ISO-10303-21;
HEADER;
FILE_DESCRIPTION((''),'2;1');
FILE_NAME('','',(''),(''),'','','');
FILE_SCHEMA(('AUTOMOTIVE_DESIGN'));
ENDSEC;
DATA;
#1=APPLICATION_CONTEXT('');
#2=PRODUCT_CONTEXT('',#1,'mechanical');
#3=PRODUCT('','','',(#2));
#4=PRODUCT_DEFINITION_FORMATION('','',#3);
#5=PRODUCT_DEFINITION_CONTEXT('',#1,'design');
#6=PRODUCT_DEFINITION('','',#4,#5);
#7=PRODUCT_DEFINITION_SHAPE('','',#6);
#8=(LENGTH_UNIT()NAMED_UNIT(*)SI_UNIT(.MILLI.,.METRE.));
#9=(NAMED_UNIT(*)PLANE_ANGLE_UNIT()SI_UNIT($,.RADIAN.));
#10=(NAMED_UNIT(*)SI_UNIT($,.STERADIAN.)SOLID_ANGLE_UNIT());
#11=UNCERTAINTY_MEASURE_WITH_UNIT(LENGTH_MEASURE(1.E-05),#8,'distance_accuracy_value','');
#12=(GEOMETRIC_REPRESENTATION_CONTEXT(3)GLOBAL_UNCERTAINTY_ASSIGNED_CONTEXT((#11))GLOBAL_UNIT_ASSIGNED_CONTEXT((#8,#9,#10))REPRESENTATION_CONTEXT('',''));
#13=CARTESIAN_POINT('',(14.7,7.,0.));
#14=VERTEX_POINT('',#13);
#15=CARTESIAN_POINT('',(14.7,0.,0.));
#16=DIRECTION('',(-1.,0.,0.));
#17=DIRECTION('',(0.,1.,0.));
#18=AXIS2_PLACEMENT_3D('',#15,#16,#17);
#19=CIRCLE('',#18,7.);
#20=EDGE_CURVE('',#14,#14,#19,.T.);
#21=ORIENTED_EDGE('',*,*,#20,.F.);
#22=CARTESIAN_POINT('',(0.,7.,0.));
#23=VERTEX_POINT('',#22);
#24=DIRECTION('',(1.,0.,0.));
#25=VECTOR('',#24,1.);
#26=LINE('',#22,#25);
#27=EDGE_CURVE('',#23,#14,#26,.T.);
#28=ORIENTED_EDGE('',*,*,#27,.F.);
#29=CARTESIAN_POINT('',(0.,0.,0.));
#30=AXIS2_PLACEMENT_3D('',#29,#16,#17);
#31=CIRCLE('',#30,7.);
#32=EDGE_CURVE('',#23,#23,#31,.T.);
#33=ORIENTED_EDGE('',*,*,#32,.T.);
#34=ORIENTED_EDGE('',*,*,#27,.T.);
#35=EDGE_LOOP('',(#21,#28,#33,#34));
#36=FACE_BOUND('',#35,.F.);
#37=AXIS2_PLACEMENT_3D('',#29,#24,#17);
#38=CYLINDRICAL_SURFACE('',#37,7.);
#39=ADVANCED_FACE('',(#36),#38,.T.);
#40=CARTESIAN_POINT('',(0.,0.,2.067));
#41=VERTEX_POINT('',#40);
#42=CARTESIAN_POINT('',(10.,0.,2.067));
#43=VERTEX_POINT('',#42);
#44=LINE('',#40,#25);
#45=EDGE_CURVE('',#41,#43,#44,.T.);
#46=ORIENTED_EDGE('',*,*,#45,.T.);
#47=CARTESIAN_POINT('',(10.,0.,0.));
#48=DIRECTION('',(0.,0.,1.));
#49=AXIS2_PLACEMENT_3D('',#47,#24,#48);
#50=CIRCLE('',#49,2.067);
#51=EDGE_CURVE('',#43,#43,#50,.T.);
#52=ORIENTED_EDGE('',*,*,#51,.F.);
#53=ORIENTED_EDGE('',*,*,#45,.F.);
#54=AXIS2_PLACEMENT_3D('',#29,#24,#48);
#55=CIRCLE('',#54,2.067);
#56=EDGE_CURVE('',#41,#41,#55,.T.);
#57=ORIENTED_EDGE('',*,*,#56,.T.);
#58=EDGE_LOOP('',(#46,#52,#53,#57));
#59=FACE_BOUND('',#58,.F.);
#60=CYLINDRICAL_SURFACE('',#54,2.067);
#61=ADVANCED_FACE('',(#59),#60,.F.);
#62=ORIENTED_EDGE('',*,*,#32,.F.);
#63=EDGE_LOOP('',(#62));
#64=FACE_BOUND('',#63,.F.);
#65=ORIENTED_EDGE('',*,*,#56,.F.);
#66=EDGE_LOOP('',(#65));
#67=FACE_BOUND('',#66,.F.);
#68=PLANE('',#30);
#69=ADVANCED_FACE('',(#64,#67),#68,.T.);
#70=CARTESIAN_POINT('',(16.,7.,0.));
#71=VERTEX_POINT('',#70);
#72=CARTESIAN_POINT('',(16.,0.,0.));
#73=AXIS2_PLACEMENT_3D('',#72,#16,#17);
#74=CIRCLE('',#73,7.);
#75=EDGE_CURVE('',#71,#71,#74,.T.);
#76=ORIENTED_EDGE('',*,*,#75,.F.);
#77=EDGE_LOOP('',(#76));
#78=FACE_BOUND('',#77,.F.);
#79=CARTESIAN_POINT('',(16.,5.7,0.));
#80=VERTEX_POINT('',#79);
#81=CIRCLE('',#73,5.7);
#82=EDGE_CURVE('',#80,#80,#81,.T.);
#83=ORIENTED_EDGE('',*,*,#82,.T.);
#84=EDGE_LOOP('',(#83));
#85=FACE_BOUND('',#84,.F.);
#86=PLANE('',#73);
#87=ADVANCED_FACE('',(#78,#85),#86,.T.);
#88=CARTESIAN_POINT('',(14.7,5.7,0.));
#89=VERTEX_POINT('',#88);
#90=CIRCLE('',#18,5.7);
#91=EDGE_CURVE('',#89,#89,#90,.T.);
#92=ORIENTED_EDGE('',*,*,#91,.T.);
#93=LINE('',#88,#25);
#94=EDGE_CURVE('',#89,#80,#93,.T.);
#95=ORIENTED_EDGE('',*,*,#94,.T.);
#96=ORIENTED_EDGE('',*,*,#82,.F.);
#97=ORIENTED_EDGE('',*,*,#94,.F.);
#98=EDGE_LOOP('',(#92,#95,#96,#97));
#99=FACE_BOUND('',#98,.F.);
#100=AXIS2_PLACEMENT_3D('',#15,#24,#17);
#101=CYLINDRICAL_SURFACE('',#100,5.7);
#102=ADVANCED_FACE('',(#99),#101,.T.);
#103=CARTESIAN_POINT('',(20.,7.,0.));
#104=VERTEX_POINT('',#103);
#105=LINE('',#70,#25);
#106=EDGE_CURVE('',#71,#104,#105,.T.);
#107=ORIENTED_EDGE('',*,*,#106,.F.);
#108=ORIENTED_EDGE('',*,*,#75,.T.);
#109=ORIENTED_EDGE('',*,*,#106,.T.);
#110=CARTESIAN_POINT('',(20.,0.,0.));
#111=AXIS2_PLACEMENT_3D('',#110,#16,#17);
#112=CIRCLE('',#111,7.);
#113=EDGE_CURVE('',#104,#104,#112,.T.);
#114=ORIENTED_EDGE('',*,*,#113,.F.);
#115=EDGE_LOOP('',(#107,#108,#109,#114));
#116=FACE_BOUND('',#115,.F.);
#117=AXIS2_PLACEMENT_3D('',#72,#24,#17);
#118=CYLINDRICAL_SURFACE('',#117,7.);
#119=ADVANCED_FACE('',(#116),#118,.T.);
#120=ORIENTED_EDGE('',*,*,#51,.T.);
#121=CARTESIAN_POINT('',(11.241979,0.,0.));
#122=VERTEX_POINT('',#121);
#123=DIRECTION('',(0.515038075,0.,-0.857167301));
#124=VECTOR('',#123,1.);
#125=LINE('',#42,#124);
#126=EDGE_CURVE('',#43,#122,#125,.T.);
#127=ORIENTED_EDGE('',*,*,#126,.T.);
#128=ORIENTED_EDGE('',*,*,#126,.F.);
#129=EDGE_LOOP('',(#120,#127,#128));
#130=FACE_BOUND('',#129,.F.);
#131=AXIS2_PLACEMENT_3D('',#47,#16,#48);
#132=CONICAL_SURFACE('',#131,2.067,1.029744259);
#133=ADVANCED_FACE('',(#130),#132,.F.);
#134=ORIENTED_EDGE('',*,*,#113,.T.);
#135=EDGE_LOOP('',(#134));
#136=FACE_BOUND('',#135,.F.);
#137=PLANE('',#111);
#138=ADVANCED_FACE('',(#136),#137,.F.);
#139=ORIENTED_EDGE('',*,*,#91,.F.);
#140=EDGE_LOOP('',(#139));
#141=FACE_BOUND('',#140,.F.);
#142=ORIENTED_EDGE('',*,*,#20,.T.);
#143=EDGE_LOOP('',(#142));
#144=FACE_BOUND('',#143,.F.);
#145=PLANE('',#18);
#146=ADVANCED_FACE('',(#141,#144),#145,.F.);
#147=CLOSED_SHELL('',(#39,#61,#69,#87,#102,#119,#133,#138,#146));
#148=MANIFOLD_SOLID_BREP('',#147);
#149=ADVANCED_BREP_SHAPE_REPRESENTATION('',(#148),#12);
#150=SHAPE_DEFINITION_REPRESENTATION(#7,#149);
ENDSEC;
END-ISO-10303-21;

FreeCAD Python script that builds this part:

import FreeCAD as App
import Part
import Sketcher


def add_polygon(sketch, points):
    """Adds a closed chain of lines whose ends are joined by coincident constraints."""
    first, n = sketch.GeometryCount, len(points)
    for a, b in zip(points, points[1:] + points[:1]):
        sketch.addGeometry(Part.LineSegment(App.Vector(*a, 0), App.Vector(*b, 0)), False)
    for i in range(n):
        sketch.addConstraint(Sketcher.Constraint("Coincident", first + i, 2, first + (i + 1) % n, 1))

doc = App.newDocument("Part")
params = doc.addObject("Spreadsheet::Sheet", "Params")
for row, (alias, value) in enumerate([
    ("sketch1_width", "20 mm"),
    ("sketch1_width2", "4 mm"),
    ("sketch1_width3", "1.3 mm"),
    ("sketch1_height", "7 mm"),
    ("revolution_angle", "360 deg"),
    ("hole_diameter", "4.134 mm"),
    ("hole_depth", "10 mm"),
], start=1):
    params.set(f"A{row}", alias)
    params.set(f"B{row}", "=" + value)
    params.setAlias(f"B{row}", alias)

body = doc.addObject("PartDesign::Body", "Body")

# Sketch on XY plane
sketch1 = body.newObject("Sketcher::SketchObject", "Sketch")
sketch1.AttachmentSupport = (doc.getObject("XY_Plane"), [""])
sketch1.MapMode = "FlatFace"
add_polygon(sketch1, [(0, 7), (0, 0), (20, 0), (20, 7), (16, 7), (16, 5.7), (14.7, 5.7), (14.7, 7)])  # lines 0-7
sketch1.addConstraint([
    Sketcher.Constraint("Vertical", 0),
    Sketcher.Constraint("Horizontal", 1),
    Sketcher.Constraint("Vertical", 2),
    Sketcher.Constraint("Horizontal", 3),
    Sketcher.Constraint("Vertical", 4),
    Sketcher.Constraint("Horizontal", 5),
    Sketcher.Constraint("Vertical", 6),
    Sketcher.Constraint("Horizontal", 7),
    Sketcher.Constraint("Coincident", 0, 2, -1, 1),
    Sketcher.Constraint("Horizontal", 3, 2, 6, 2),
    Sketcher.Constraint("Equal", 5, 4),
    Sketcher.Constraint("DistanceX", 1, 1, 1, 2, 20.0),
    Sketcher.Constraint("DistanceX", 3, 2, 3, 1, 4.0),
    Sketcher.Constraint("DistanceX", 5, 2, 5, 1, 1.3),
    Sketcher.Constraint("DistanceY", 0, 2, 0, 1, 7.0),
])
sketch1.setExpression("Constraints[19]", "Params.sketch1_width")
sketch1.setExpression("Constraints[20]", "Params.sketch1_width2")
sketch1.setExpression("Constraints[21]", "Params.sketch1_width3")
sketch1.setExpression("Constraints[22]", "Params.sketch1_height")
revolution = body.newObject("PartDesign::Revolution", "Revolution")
revolution.Profile = sketch1
revolution.ReferenceAxis = (sketch1, ["H_Axis"])
revolution.setExpression("Angle", "Params.revolution_angle")

# Sketch on YZ plane
sketch2 = body.newObject("Sketcher::SketchObject", "Sketch001")
sketch2.AttachmentSupport = (doc.getObject("YZ_Plane"), [""])
sketch2.MapMode = "FlatFace"
sketch2.addGeometry(Part.Circle(App.Vector(0, 0, 0), App.Vector(0, 0, 1), 2.1), False)
sketch2.addConstraint([
    Sketcher.Constraint("Coincident", 0, 3, -1, 1),
    Sketcher.Constraint("Diameter", 0, 4.134),
])
doc.recompute()
hole = body.newObject("PartDesign::Hole", "Hole")
hole.Profile = sketch2
hole.ThreadType = "None"
hole.setExpression("Diameter", "Params.hole_diameter")
hole.DepthType = "Dimension"
hole.setExpression("Depth", "Params.hole_depth")
hole.DrillPoint = "Angled"
hole.DrillPointAngle = 118
hole.Reversed = True

doc.recompute()
